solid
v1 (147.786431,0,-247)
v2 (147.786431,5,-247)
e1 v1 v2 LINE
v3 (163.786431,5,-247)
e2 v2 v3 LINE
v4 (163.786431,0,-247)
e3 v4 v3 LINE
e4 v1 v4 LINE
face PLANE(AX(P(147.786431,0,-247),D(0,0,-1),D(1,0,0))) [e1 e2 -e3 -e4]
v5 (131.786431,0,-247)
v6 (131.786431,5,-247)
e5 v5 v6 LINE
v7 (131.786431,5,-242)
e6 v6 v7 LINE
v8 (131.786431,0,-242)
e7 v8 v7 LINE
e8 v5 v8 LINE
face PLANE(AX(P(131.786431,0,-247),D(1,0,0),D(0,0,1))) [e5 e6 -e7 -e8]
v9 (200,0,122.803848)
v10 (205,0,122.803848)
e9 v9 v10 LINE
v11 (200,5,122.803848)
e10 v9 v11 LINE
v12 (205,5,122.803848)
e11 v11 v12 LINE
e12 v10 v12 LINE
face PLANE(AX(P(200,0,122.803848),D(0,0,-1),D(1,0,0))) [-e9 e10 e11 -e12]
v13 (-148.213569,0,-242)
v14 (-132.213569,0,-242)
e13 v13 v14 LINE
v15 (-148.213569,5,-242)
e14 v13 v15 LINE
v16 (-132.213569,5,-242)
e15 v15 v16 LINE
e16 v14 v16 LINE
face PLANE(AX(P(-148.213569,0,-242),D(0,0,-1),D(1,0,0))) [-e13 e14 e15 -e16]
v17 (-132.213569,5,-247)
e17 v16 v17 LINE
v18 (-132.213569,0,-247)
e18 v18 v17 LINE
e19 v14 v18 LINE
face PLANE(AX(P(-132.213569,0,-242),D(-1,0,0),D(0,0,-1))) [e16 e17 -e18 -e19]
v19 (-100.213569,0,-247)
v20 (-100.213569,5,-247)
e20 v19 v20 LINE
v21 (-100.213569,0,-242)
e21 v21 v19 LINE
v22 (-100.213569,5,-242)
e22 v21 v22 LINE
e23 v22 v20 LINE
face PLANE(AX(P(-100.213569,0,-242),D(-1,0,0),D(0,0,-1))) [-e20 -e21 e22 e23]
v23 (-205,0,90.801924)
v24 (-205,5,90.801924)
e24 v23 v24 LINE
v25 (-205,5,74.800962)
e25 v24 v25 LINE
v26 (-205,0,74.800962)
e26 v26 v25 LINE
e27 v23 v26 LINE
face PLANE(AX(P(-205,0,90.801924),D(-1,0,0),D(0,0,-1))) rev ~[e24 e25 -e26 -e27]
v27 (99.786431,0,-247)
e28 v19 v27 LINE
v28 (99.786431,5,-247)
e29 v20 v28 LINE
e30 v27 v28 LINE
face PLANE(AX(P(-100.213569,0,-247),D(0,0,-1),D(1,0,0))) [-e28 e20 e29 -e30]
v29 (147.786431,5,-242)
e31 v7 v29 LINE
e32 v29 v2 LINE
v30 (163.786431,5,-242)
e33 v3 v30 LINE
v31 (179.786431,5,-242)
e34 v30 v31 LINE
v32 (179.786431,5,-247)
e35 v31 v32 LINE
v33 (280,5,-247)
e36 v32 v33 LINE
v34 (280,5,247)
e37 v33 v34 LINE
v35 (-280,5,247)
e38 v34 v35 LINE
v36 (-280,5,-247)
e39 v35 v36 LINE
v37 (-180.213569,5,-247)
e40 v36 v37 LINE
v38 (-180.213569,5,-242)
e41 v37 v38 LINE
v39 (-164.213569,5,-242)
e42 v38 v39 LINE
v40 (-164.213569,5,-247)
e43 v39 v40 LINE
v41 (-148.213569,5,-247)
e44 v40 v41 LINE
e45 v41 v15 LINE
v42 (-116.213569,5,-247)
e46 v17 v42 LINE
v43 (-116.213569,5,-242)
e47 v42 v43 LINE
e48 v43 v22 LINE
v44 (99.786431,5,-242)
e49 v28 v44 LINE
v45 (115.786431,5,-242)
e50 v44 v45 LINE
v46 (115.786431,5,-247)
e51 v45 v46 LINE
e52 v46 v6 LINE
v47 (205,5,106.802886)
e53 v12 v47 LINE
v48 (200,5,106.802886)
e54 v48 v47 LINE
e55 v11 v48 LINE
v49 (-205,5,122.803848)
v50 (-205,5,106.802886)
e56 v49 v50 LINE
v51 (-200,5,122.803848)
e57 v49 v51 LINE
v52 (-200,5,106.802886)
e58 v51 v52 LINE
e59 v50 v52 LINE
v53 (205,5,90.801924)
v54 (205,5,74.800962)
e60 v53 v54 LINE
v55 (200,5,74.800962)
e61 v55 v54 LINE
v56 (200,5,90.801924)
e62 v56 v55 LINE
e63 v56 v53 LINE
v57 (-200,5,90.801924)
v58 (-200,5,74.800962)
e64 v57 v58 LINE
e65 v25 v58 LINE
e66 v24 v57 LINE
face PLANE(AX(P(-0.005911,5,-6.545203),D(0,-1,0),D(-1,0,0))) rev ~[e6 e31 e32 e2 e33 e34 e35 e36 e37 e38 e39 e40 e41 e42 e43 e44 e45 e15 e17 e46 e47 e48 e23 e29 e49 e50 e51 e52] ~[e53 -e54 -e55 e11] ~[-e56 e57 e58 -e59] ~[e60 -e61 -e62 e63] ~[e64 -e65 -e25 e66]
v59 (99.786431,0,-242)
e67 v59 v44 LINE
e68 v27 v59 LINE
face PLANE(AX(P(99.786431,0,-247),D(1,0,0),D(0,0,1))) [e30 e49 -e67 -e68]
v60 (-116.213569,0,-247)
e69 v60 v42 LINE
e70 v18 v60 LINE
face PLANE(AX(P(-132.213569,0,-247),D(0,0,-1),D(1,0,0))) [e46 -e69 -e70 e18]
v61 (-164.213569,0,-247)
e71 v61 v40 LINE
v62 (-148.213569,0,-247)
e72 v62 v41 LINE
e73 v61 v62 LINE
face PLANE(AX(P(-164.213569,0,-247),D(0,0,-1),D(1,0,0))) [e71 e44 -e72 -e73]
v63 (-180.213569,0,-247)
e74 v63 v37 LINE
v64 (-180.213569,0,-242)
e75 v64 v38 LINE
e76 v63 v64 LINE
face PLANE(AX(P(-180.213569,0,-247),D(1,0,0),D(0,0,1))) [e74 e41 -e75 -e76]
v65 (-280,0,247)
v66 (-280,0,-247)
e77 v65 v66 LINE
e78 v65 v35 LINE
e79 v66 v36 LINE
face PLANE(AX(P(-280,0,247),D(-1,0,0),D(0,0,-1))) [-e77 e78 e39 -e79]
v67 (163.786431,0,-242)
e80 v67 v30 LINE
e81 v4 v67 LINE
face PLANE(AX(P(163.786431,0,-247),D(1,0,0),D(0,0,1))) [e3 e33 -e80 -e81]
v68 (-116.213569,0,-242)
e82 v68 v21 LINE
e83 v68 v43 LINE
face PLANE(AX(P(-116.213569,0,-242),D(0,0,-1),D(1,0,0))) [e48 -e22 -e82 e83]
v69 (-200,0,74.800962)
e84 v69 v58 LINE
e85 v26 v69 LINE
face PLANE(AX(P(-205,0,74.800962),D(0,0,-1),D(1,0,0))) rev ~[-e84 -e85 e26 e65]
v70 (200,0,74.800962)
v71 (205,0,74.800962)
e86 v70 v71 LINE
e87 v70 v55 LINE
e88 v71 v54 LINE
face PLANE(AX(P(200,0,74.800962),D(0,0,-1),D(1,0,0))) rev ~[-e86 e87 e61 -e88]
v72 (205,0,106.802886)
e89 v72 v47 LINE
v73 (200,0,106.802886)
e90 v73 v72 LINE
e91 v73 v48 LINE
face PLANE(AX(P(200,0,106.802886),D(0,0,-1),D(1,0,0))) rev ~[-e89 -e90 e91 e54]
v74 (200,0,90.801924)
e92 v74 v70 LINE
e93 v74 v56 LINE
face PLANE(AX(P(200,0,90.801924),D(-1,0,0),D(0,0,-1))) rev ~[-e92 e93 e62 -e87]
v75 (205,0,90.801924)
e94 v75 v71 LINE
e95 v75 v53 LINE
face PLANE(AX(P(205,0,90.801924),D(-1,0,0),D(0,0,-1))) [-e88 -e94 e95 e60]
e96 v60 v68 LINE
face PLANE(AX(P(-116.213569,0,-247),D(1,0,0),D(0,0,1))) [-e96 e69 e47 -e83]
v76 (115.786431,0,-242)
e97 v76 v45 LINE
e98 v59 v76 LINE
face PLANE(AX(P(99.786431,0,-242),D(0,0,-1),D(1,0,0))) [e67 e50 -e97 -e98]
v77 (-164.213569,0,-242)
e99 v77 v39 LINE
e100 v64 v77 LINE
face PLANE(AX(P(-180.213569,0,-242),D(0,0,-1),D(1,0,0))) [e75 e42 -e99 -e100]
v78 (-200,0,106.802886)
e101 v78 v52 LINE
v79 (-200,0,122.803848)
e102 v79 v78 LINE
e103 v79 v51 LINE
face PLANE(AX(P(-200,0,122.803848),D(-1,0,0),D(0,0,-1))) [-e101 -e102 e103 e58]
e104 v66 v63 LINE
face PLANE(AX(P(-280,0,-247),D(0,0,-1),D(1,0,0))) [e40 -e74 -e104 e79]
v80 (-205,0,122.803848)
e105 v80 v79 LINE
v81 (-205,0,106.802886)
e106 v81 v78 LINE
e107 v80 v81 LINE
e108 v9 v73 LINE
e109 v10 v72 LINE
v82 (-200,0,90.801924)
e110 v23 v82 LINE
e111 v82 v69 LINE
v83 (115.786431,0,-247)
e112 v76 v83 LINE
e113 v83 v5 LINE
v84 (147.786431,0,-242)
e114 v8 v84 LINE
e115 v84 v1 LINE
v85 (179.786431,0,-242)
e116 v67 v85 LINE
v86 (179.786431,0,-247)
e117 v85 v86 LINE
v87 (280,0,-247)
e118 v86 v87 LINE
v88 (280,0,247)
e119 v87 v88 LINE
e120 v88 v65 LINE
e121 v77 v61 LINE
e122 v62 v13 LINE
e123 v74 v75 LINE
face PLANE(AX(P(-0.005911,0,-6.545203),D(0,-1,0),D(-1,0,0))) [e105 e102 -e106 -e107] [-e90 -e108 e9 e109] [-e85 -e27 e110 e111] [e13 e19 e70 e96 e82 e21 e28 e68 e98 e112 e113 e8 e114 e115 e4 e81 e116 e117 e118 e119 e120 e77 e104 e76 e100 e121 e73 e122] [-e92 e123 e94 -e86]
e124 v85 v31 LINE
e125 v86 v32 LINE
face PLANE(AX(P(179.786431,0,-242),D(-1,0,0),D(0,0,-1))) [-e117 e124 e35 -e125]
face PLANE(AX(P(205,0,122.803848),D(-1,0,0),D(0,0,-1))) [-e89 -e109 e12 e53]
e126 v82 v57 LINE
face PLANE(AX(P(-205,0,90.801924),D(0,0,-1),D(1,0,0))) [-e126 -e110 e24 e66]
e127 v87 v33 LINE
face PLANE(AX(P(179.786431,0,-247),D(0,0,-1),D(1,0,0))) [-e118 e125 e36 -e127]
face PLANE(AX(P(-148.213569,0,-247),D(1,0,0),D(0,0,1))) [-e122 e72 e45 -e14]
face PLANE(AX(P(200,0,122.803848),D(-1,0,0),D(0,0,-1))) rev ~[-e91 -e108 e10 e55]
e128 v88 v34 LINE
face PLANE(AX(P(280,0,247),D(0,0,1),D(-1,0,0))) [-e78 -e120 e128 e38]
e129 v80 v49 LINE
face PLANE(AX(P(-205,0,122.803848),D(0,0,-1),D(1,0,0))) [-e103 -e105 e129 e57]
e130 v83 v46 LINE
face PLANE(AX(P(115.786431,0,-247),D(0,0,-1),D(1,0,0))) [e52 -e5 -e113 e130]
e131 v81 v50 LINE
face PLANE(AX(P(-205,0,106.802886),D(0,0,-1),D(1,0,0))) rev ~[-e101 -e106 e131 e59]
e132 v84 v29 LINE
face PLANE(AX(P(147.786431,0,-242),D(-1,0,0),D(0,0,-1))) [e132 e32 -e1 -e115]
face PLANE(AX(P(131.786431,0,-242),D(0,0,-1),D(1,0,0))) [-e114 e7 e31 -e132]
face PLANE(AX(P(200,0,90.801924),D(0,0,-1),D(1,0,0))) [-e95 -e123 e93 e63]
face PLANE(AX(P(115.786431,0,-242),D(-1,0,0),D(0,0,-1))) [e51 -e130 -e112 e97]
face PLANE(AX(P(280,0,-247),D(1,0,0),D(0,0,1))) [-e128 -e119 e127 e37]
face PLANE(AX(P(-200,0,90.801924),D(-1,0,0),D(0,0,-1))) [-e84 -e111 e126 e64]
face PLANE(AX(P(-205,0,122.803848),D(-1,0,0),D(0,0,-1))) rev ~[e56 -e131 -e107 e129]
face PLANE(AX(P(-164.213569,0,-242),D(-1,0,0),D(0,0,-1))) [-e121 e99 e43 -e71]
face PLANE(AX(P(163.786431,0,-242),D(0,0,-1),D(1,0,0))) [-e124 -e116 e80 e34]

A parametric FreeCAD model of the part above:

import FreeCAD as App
import Part
import Sketcher


def add_polygon(sketch, points):
    """Adds a closed chain of lines whose ends are joined by coincident constraints."""
    first, n = sketch.GeometryCount, len(points)
    for a, b in zip(points, points[1:] + points[:1]):
        sketch.addGeometry(Part.LineSegment(App.Vector(*a, 0), App.Vector(*b, 0)), False)
    for i in range(n):
        sketch.addConstraint(Sketcher.Constraint("Coincident", first + i, 2, first + (i + 1) % n, 1))

doc = App.newDocument("Part")
params = doc.addObject("Spreadsheet::Sheet", "Params")
for row, (alias, value) in enumerate([
    ("sketch1_width", "560 mm"),
    ("sketch1_width2", "16 mm"),
    ("sketch1_width3", "200 mm"),
    ("sketch1_width4", "5 mm"),
    ("sketch1_height", "494 mm"),
    ("pad1_length", "5 mm"),
], start=1):
    params.set(f"A{row}", alias)
    params.set(f"B{row}", "=" + value)
    params.setAlias(f"B{row}", alias)

body = doc.addObject("PartDesign::Body", "Body")

# Sketch on XZ plane
sketch1 = body.newObject("Sketcher::SketchObject", "Sketch")
sketch1.AttachmentSupport = (doc.getObject("XZ_Plane"), [""])
sketch1.MapMode = "FlatFace"
add_polygon(sketch1, [(-180, -247), (-280, -247), (-280, 247), (280, 247), (280, -247), (180, -247), (180, -242), (164, -242), (164, -247), (148, -247), (148, -242), (132, -242), (132, -247), (116, -247), (116, -242), (100, -242), (100, -247), (-100, -247), (-100, -242), (-116, -242), (-116, -247), (-132, -247), (-132, -242), (-148, -242), (-148, -247), (-164, -247), (-164, -242), (-180, -242)])  # lines 0-27
add_polygon(sketch1, [(200, 123), (200, 107), (205, 107), (205, 123)])  # lines 28-31
add_polygon(sketch1, [(-205, 123), (-205, 107), (-200, 107), (-200, 123)])  # lines 32-35
add_polygon(sketch1, [(200, 91), (200, 75), (205, 75), (205, 91)])  # lines 36-39
add_polygon(sketch1, [(-205, 91), (-205, 75), (-200, 75), (-200, 91)])  # lines 40-43
sketch1.addConstraint([
    Sketcher.Constraint("Horizontal", 0),
    Sketcher.Constraint("Vertical", 1),
    Sketcher.Constraint("Horizontal", 2),
    Sketcher.Constraint("Vertical", 3),
    Sketcher.Constraint("Horizontal", 4),
    Sketcher.Constraint("Vertical", 5),
    Sketcher.Constraint("Horizontal", 6),
    Sketcher.Constraint("Vertical", 7),
    Sketcher.Constraint("Horizontal", 8),
    Sketcher.Constraint("Vertical", 9),
    Sketcher.Constraint("Horizontal", 10),
    Sketcher.Constraint("Vertical", 11),
    Sketcher.Constraint("Horizontal", 12),
    Sketcher.Constraint("Vertical", 13),
    Sketcher.Constraint("Horizontal", 14),
    Sketcher.Constraint("Vertical", 15),
    Sketcher.Constraint("Horizontal", 16),
    Sketcher.Constraint("Vertical", 17),
    Sketcher.Constraint("Horizontal", 18),
    Sketcher.Constraint("Vertical", 19),
    Sketcher.Constraint("Horizontal", 20),
    Sketcher.Constraint("Vertical", 21),
    Sketcher.Constraint("Horizontal", 22),
    Sketcher.Constraint("Vertical", 23),
    Sketcher.Constraint("Horizontal", 24),
    Sketcher.Constraint("Vertical", 25),
    Sketcher.Constraint("Horizontal", 26),
    Sketcher.Constraint("Vertical", 27),
    Sketcher.Constraint("Vertical", 28),
    Sketcher.Constraint("Horizontal", 29),
    Sketcher.Constraint("Vertical", 30),
    Sketcher.Constraint("Horizontal", 31),
    Sketcher.Constraint("Vertical", 32),
    Sketcher.Constraint("Horizontal", 33),
    Sketcher.Constraint("Vertical", 34),
    Sketcher.Constraint("Horizontal", 35),
    Sketcher.Constraint("Vertical", 36),
    Sketcher.Constraint("Horizontal", 37),
    Sketcher.Constraint("Vertical", 38),
    Sketcher.Constraint("Horizontal", 39),
    Sketcher.Constraint("Vertical", 40),
    Sketcher.Constraint("Horizontal", 41),
    Sketcher.Constraint("Vertical", 42),
    Sketcher.Constraint("Horizontal", 43),
    Sketcher.Constraint("Symmetric", 0, 2, 2, 2, -1, 1),
    Sketcher.Constraint("Symmetric", 29, 2, 32, 2, -2),
    Sketcher.Constraint("Symmetric", 31, 2, 34, 2, -2),
    Sketcher.Constraint("Symmetric", 37, 2, 40, 2, -2),
    Sketcher.Constraint("Symmetric", 39, 2, 42, 2, -2),
    Sketcher.Constraint("Horizontal", 0, 2, 3, 2),
    Sketcher.Constraint("Horizontal", 4, 2, 7, 2),
    Sketcher.Constraint("Horizontal", 6, 2, 9, 2),
    Sketcher.Constraint("Horizontal", 8, 2, 11, 2),
    Sketcher.Constraint("Horizontal", 10, 2, 13, 2),
    Sketcher.Constraint("Horizontal", 12, 2, 15, 2),
    Sketcher.Constraint("Horizontal", 14, 2, 17, 2),
    Sketcher.Constraint("Horizontal", 16, 2, 19, 2),
    Sketcher.Constraint("Horizontal", 18, 2, 21, 2),
    Sketcher.Constraint("Horizontal", 20, 2, 23, 2),
    Sketcher.Constraint("Horizontal", 22, 2, 25, 2),
    Sketcher.Constraint("Vertical", 31, 2, 36, 2),
    Sketcher.Constraint("Vertical", 30, 2, 37, 2),
    Sketcher.Constraint("Equal", 6, 8),
    Sketcher.Constraint("Equal", 8, 10),
    Sketcher.Constraint("Equal", 10, 12),
    Sketcher.Constraint("Equal", 12, 14),
    Sketcher.Constraint("Equal", 14, 18),
    Sketcher.Constraint("Equal", 18, 20),
    Sketcher.Constraint("Equal", 20, 22),
    Sketcher.Constraint("Equal", 22, 24),
    Sketcher.Constraint("Equal", 24, 26),
    Sketcher.Constraint("Equal", 43, 5),
    Sketcher.Constraint("Equal", 34, 36),
    Sketcher.Constraint("DistanceX", 2, 1, 2, 2, 560.0),
    Sketcher.Constraint("DistanceX", 6, 2, 6, 1, 16.0),
    Sketcher.Constraint("DistanceX", 16, 2, 16, 1, 200.0),
    Sketcher.Constraint("DistanceX", 29, 1, 29, 2, 5.0),
    Sketcher.Constraint("DistanceY", 1, 1, 1, 2, 494.0),
    Sketcher.Constraint("DistanceX", -1, 1, 28, 2, 200.0),
    Sketcher.Constraint("DistanceX", 0, 2, 0, 1, 99.786431),
    Sketcher.Constraint("DistanceY", 28, 2, 28, 1, 16.000962),
    Sketcher.Constraint("DistanceY", -1, 1, 30, 2, 122.803848),
    Sketcher.Constraint("DistanceY", -1, 1, 36, 2, 74.800962),
])
sketch1.setExpression("Constraints[117]", "Params.sketch1_width")
sketch1.setExpression("Constraints[118]", "Params.sketch1_width2")
sketch1.setExpression("Constraints[119]", "Params.sketch1_width3")
sketch1.setExpression("Constraints[120]", "Params.sketch1_width4")
sketch1.setExpression("Constraints[121]", "Params.sketch1_height")
pad1 = body.newObject("PartDesign::Pad", "Pad")
pad1.Profile = sketch1
pad1.setExpression("Length", "Params.pad1_length")
pad1.Reversed = True

doc.recompute()
